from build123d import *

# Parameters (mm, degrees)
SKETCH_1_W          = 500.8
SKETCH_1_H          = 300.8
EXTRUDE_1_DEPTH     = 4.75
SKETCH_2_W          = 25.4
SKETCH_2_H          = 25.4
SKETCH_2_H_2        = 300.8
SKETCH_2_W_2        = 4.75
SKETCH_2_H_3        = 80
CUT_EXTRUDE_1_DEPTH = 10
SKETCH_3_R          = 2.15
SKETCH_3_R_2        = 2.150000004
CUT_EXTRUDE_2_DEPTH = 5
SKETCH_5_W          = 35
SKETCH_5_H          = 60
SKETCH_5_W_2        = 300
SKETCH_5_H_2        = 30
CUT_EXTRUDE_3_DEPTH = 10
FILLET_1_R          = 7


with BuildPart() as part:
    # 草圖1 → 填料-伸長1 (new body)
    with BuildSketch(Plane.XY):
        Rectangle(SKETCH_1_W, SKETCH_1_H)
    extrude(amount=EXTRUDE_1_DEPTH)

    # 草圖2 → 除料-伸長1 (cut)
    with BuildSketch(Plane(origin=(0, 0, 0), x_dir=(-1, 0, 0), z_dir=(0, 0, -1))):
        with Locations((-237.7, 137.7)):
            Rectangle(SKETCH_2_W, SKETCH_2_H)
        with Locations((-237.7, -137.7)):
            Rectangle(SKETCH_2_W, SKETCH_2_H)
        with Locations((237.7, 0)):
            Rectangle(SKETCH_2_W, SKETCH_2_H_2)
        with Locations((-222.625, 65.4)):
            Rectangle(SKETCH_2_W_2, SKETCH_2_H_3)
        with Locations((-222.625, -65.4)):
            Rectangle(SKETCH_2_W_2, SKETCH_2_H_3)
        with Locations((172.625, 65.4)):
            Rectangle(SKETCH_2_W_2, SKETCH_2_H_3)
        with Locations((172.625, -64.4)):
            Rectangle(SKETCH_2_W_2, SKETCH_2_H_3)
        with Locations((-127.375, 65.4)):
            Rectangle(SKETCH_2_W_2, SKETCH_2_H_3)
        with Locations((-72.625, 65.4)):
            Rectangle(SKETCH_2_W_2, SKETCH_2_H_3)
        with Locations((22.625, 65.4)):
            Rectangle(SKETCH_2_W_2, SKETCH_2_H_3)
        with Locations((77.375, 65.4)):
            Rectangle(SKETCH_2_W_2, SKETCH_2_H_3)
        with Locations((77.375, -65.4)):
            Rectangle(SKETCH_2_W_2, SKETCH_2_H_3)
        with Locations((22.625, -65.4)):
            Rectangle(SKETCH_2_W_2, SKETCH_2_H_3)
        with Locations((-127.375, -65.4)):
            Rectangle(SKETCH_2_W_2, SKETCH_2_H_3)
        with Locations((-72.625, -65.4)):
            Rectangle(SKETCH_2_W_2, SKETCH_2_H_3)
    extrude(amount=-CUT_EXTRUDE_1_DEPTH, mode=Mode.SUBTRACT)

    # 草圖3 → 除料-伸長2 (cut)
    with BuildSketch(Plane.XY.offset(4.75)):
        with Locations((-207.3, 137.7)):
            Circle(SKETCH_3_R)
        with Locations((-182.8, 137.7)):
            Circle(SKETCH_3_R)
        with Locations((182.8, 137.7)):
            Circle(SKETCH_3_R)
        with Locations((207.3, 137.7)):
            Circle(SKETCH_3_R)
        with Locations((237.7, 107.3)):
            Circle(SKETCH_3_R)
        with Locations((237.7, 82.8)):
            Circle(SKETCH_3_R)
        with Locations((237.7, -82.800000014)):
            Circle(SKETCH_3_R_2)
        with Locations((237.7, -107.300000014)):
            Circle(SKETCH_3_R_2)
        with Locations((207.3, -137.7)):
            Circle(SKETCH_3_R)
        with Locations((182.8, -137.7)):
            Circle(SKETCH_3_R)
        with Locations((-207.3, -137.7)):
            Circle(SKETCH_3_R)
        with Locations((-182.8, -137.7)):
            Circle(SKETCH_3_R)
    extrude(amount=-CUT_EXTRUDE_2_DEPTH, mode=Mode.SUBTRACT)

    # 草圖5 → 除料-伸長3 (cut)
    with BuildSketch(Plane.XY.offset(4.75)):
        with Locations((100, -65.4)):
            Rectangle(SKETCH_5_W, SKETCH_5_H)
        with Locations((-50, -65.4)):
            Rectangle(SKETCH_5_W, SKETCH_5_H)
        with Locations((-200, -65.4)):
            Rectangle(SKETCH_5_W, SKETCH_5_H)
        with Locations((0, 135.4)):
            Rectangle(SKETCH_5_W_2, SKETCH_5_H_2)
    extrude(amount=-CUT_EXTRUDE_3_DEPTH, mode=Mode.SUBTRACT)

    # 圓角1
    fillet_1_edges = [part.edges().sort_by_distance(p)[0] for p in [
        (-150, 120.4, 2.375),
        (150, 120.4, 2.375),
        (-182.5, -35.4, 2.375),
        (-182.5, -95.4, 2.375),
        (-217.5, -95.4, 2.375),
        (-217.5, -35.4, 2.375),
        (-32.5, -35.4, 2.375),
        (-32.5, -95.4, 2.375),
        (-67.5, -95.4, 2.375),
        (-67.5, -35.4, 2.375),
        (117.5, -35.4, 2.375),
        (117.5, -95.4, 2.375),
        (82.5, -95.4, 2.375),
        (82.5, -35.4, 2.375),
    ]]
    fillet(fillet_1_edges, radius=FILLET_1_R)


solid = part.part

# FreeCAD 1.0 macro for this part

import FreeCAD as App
import Part
import Sketcher

V = App.Vector
Q = App.Units.Quantity


def edges_at(feature, points):
    """Names of the edges that pass closest to the given points."""
    edges = feature.Shape.Edges
    near = lambda p: min(range(len(edges)), key=lambda i: edges[i].distToShape(Part.Vertex(*p))[0])
    return sorted({f"Edge{near(p) + 1}" for p in points})


def add_polygon(sketch, points):
    """Adds a closed chain of lines whose ends are joined by coincident constraints."""
    first, n = sketch.GeometryCount, len(points)
    for a, b in zip(points, points[1:] + points[:1]):
        sketch.addGeometry(Part.LineSegment(App.Vector(*a, 0), App.Vector(*b, 0)), False)
    for i in range(n):
        sketch.addConstraint(Sketcher.Constraint("Coincident", first + i, 2, first + (i + 1) % n, 1))

doc = App.newDocument("Part")
params = doc.addObject("Spreadsheet::Sheet", "Params")
for row, (alias, value) in enumerate([
    ("sketch1_width", "500.8 mm"),
    ("sketch1_height", "300.8 mm"),
    ("pad1_length", "4.75 mm"),
    ("sketch2_height", "80 mm"),
    ("sketch2_width", "25.4 mm"),
    ("sketch2_height2", "300.8 mm"),
    ("sketch2_width2", "4.75 mm"),
    ("pocket1_length", "10 mm"),
    ("sketch3_diameter", "4.3 mm"),
    ("pocket2_length", "5 mm"),
    ("sketch4_width", "35 mm"),
    ("sketch4_width2", "300 mm"),
    ("sketch4_height", "60 mm"),
    ("sketch4_height2", "30 mm"),
    ("pocket3_length", "10 mm"),
    ("fillet_radius", "7 mm"),
], start=1):
    params.set(f"A{row}", alias)
    params.set(f"B{row}", "=" + value)
    params.setAlias(f"B{row}", alias)

body = doc.addObject("PartDesign::Body", "Body")

sketch1 = body.newObject("Sketcher::SketchObject", "Sketch")
sketch1.AttachmentSupport = (doc.getObject("XY_Plane"), [""])
sketch1.MapMode = "FlatFace"
add_polygon(sketch1, [(-250.4, 150.4), (-250.4, -150.4), (250.4, -150.4), (250.4, 150.4)])
sketch1.addConstraint(Sketcher.Constraint("Vertical", 0))
sketch1.addConstraint(Sketcher.Constraint("Horizontal", 1))
sketch1.addConstraint(Sketcher.Constraint("Vertical", 2))
sketch1.addConstraint(Sketcher.Constraint("Horizontal", 3))
sketch1.addConstraint(Sketcher.Constraint("Symmetric", 0, 2, 2, 2, -1, 1))
sketch1.addConstraint(Sketcher.Constraint("DistanceX", 1, 1, 1, 2, Q("500.8 mm")))
sketch1.addConstraint(Sketcher.Constraint("DistanceY", 0, 2, 0, 1, Q("300.8 mm")))
sketch1.setExpression("Constraints[9]", "Params.sketch1_width")
sketch1.setExpression("Constraints[10]", "Params.sketch1_height")
pad1 = body.newObject("PartDesign::Pad", "Pad")
pad1.Profile = sketch1
pad1.setExpression("Length", "Params.pad1_length")

sketch2 = body.newObject("Sketcher::SketchObject", "Sketch001")
sketch2.AttachmentSupport = (doc.getObject("XY_Plane"), [""])
sketch2.MapMode = "FlatFace"
add_polygon(sketch2, [(250.4, 150.4), (250.4, 125), (225, 125), (225, 150.4)])
add_polygon(sketch2, [(250.4, -125), (250.4, -150.4), (225, -150.4), (225, -125)])
add_polygon(sketch2, [(-225, 150.4), (-225, -150.4), (-250.4, -150.4), (-250.4, 150.4)])
add_polygon(sketch2, [(225, 105.4), (225, 25.4), (220.25, 25.4), (220.25, 105.4)])
add_polygon(sketch2, [(225, -25.4), (225, -105.4), (220.25, -105.4), (220.25, -25.4)])
add_polygon(sketch2, [(-170.25, 105.4), (-170.25, 25.4), (-175, 25.4), (-175, 105.4)])
add_polygon(sketch2, [(-170.25, -24.4), (-170.25, -104.4), (-175, -104.4), (-175, -24.4)])
add_polygon(sketch2, [(129.75, 105.4), (129.75, 25.4), (125, 25.4), (125, 105.4)])
add_polygon(sketch2, [(75, 105.4), (75, 25.4), (70.25, 25.4), (70.25, 105.4)])
add_polygon(sketch2, [(-20.25, 105.4), (-20.25, 25.4), (-25, 25.4), (-25, 105.4)])
add_polygon(sketch2, [(-75, 105.4), (-75, 25.4), (-79.75, 25.4), (-79.75, 105.4)])
add_polygon(sketch2, [(-75, -25.4), (-75, -105.4), (-79.75, -105.4), (-79.75, -25.4)])
add_polygon(sketch2, [(-20.25, -25.4), (-20.25, -105.4), (-25, -105.4), (-25, -25.4)])
add_polygon(sketch2, [(129.75, -25.4), (129.75, -105.4), (125, -105.4), (125, -25.4)])
add_polygon(sketch2, [(75, -25.4), (75, -105.4), (70.25, -105.4), (70.25, -25.4)])
sketch2.addConstraint(Sketcher.Constraint("Vertical", 0))
sketch2.addConstraint(Sketcher.Constraint("Horizontal", 1))
sketch2.addConstraint(Sketcher.Constraint("Vertical", 2))
sketch2.addConstraint(Sketcher.Constraint("Horizontal", 3))
sketch2.addConstraint(Sketcher.Constraint("Vertical", 4))
sketch2.addConstraint(Sketcher.Constraint("Horizontal", 5))
sketch2.addConstraint(Sketcher.Constraint("Vertical", 6))
sketch2.addConstraint(Sketcher.Constraint("Horizontal", 7))
sketch2.addConstraint(Sketcher.Constraint("Vertical", 8))
sketch2.addConstraint(Sketcher.Constraint("Horizontal", 9))
sketch2.addConstraint(Sketcher.Constraint("Vertical", 10))
sketch2.addConstraint(Sketcher.Constraint("Horizontal", 11))
sketch2.addConstraint(Sketcher.Constraint("Vertical", 12))
sketch2.addConstraint(Sketcher.Constraint("Horizontal", 13))
sketch2.addConstraint(Sketcher.Constraint("Vertical", 14))
sketch2.addConstraint(Sketcher.Constraint("Horizontal", 15))
sketch2.addConstraint(Sketcher.Constraint("Vertical", 16))
sketch2.addConstraint(Sketcher.Constraint("Horizontal", 17))
sketch2.addConstraint(Sketcher.Constraint("Vertical", 18))
sketch2.addConstraint(Sketcher.Constraint("Horizontal", 19))
sketch2.addConstraint(Sketcher.Constraint("Vertical", 20))
sketch2.addConstraint(Sketcher.Constraint("Horizontal", 21))
sketch2.addConstraint(Sketcher.Constraint("Vertical", 22))
sketch2.addConstraint(Sketcher.Constraint("Horizontal", 23))
sketch2.addConstraint(Sketcher.Constraint("Vertical", 24))
sketch2.addConstraint(Sketcher.Constraint("Horizontal", 25))
sketch2.addConstraint(Sketcher.Constraint("Vertical", 26))
sketch2.addConstraint(Sketcher.Constraint("Horizontal", 27))
sketch2.addConstraint(Sketcher.Constraint("Vertical", 28))
sketch2.addConstraint(Sketcher.Constraint("Horizontal", 29))
sketch2.addConstraint(Sketcher.Constraint("Vertical", 30))
sketch2.addConstraint(Sketcher.Constraint("Horizontal", 31))
sketch2.addConstraint(Sketcher.Constraint("Vertical", 32))
sketch2.addConstraint(Sketcher.Constraint("Horizontal", 33))
sketch2.addConstraint(Sketcher.Constraint("Vertical", 34))
sketch2.addConstraint(Sketcher.Constraint("Horizontal", 35))
sketch2.addConstraint(Sketcher.Constraint("Vertical", 36))
sketch2.addConstraint(Sketcher.Constraint("Horizontal", 37))
sketch2.addConstraint(Sketcher.Constraint("Vertical", 38))
sketch2.addConstraint(Sketcher.Constraint("Horizontal", 39))
sketch2.addConstraint(Sketcher.Constraint("Vertical", 40))
sketch2.addConstraint(Sketcher.Constraint("Horizontal", 41))
sketch2.addConstraint(Sketcher.Constraint("Vertical", 42))
sketch2.addConstraint(Sketcher.Constraint("Horizontal", 43))
sketch2.addConstraint(Sketcher.Constraint("Vertical", 44))
sketch2.addConstraint(Sketcher.Constraint("Horizontal", 45))
sketch2.addConstraint(Sketcher.Constraint("Vertical", 46))
sketch2.addConstraint(Sketcher.Constraint("Horizontal", 47))
sketch2.addConstraint(Sketcher.Constraint("Vertical", 48))
sketch2.addConstraint(Sketcher.Constraint("Horizontal", 49))
sketch2.addConstraint(Sketcher.Constraint("Vertical", 50))
sketch2.addConstraint(Sketcher.Constraint("Horizontal", 51))
sketch2.addConstraint(Sketcher.Constraint("Vertical", 52))
sketch2.addConstraint(Sketcher.Constraint("Horizontal", 53))
sketch2.addConstraint(Sketcher.Constraint("Vertical", 54))
sketch2.addConstraint(Sketcher.Constraint("Horizontal", 55))
sketch2.addConstraint(Sketcher.Constraint("Vertical", 56))
sketch2.addConstraint(Sketcher.Constraint("Horizontal", 57))
sketch2.addConstraint(Sketcher.Constraint("Vertical", 58))
sketch2.addConstraint(Sketcher.Constraint("Horizontal", 59))
sketch2.addConstraint(Sketcher.Constraint("Symmetric", 2, 2, 8, 2, -1, 1))
sketch2.addConstraint(Sketcher.Constraint("Symmetric", 4, 2, 10, 2, -1, 1))
sketch2.addConstraint(Sketcher.Constraint("Symmetric", 35, 2, 44, 2, -1, 1))
sketch2.addConstraint(Sketcher.Constraint("Symmetric", 43, 2, 56, 2, -1, 1))
sketch2.addConstraint(Sketcher.Constraint("Symmetric", 5, 2, 8, 2, -2))
sketch2.addConstraint(Sketcher.Constraint("Symmetric", 32, 2, 40, 2, -2))
sketch2.addConstraint(Sketcher.Constraint("Symmetric", 0, 2, 7, 2, -1))
sketch2.addConstraint(Sketcher.Constraint("Symmetric", 15, 2, 16, 2, -1))
sketch2.addConstraint(Sketcher.Constraint("Symmetric", 13, 2, 18, 2, -1))
sketch2.addConstraint(Sketcher.Constraint("Symmetric", 42, 2, 45, 2, -1))
sketch2.addConstraint(Sketcher.Constraint("Symmetric", 39, 2, 48, 2, -1))
sketch2.addConstraint(Sketcher.Constraint("Symmetric", 37, 2, 50, 2, -1))
sketch2.addConstraint(Sketcher.Constraint("Symmetric", 31, 2, 52, 2, -1))
sketch2.addConstraint(Sketcher.Constraint("Symmetric", 29, 2, 54, 2, -1))
sketch2.addConstraint(Sketcher.Constraint("Symmetric", 33, 2, 58, 2, -1))
sketch2.addConstraint(Sketcher.Constraint("Horizontal", 13, 2, 20, 2))
sketch2.addConstraint(Sketcher.Constraint("Horizontal", 15, 2, 22, 2))
sketch2.addConstraint(Sketcher.Constraint("Horizontal", 21, 2, 28, 2))
sketch2.addConstraint(Sketcher.Constraint("Horizontal", 23, 2, 30, 2))
sketch2.addConstraint(Sketcher.Constraint("Horizontal", 29, 2, 32, 2))
sketch2.addConstraint(Sketcher.Constraint("Horizontal", 31, 2, 34, 2))
sketch2.addConstraint(Sketcher.Constraint("Horizontal", 33, 2, 36, 2))
sketch2.addConstraint(Sketcher.Constraint("Horizontal", 35, 2, 38, 2))
sketch2.addConstraint(Sketcher.Constraint("Horizontal", 19, 2, 46, 2))
sketch2.addConstraint(Sketcher.Constraint("Vertical", 6, 2, 12, 2))
sketch2.addConstraint(Sketcher.Constraint("Vertical", 23, 2, 24, 2))
sketch2.addConstraint(Sketcher.Constraint("Vertical", 22, 2, 25, 2))
sketch2.addConstraint(Sketcher.Constraint("Equal", 19, 21))
sketch2.addConstraint(Sketcher.Constraint("Equal", 27, 29))
sketch2.addConstraint(Sketcher.Constraint("Equal", 31, 33))
sketch2.addConstraint(Sketcher.Constraint("Equal", 35, 37))
sketch2.addConstraint(Sketcher.Constraint("Equal", 39, 41))
sketch2.addConstraint(Sketcher.Constraint("Equal", 11, 0))
sketch2.addConstraint(Sketcher.Constraint("Equal", 22, 24))
sketch2.addConstraint(Sketcher.Constraint("DistanceY", 12, 2, 12, 1, Q("80 mm")))
sketch2.addConstraint(Sketcher.Constraint("DistanceX", 1, 2, 1, 1, Q("25.4 mm")))
sketch2.addConstraint(Sketcher.Constraint("DistanceY", 8, 2, 8, 1, Q("300.8 mm")))
sketch2.addConstraint(Sketcher.Constraint("DistanceX", -1, 1, 1, 2, Q("225 mm")))
sketch2.addConstraint(Sketcher.Constraint("DistanceX", 21, 2, -1, 1, Q("175 mm")))
sketch2.addConstraint(Sketcher.Constraint("DistanceX", -1, 1, 29, 2, Q("125 mm")))
sketch2.addConstraint(Sketcher.Constraint("DistanceX", -1, 1, 32, 2, Q("75 mm")))
sketch2.addConstraint(Sketcher.Constraint("DistanceX", 37, 2, -1, 1, Q("25 mm")))
sketch2.addConstraint(Sketcher.Constraint("DistanceY", 12, 2, 2, 2, Q("125 mm")))
sketch2.addConstraint(Sketcher.Constraint("DistanceY", 8, 2, 24, 2, Q("46 mm")))
sketch2.addConstraint(Sketcher.Constraint("DistanceX", 13, 2, 13, 1, Q("4.75 mm")))
sketch2.setExpression("Constraints[154]", "Params.sketch2_height")
sketch2.setExpression("Constraints[155]", "Params.sketch2_width")
sketch2.setExpression("Constraints[156]", "Params.sketch2_height2")
sketch2.setExpression("Constraints[164]", "Params.sketch2_width2")
pocket1 = body.newObject("PartDesign::Pocket", "Pocket")
pocket1.Profile = sketch2
pocket1.setExpression("Length", "Params.pocket1_length")
pocket1.Reversed = True

sketch3 = body.newObject("Sketcher::SketchObject", "Sketch002")
sketch3.AttachmentSupport = (doc.getObject("XY_Plane"), [""])
sketch3.MapMode = "FlatFace"
sketch3.AttachmentOffset = App.Placement(V(0, 0, 4.75), App.Rotation())
sketch3.addGeometry(Part.Circle(V(-207.3, 137.7, 0), V(0, 0, 1), 2.15), False)
sketch3.addGeometry(Part.Circle(V(-182.8, 137.7, 0), V(0, 0, 1), 2.15), False)
sketch3.addGeometry(Part.Circle(V(182.8, 137.7, 0), V(0, 0, 1), 2.15), False)
sketch3.addGeometry(Part.Circle(V(207.3, 137.7, 0), V(0, 0, 1), 2.15), False)
sketch3.addGeometry(Part.Circle(V(237.7, 107.3, 0), V(0, 0, 1), 2.15), False)
sketch3.addGeometry(Part.Circle(V(237.7, 82.8, 0), V(0, 0, 1), 2.15), False)
sketch3.addGeometry(Part.Circle(V(237.7, -82.8, 0), V(0, 0, 1), 2.15), False)
sketch3.addGeometry(Part.Circle(V(237.7, -107.3, 0), V(0, 0, 1), 2.15), False)
sketch3.addGeometry(Part.Circle(V(207.3, -137.7, 0), V(0, 0, 1), 2.15), False)
sketch3.addGeometry(Part.Circle(V(182.8, -137.7, 0), V(0, 0, 1), 2.15), False)
sketch3.addGeometry(Part.Circle(V(-207.3, -137.7, 0), V(0, 0, 1), 2.15), False)
sketch3.addGeometry(Part.Circle(V(-182.8, -137.7, 0), V(0, 0, 1), 2.15), False)
sketch3.addConstraint(Sketcher.Constraint("Equal", 0, 1))
sketch3.addConstraint(Sketcher.Constraint("Equal", 1, 2))
sketch3.addConstraint(Sketcher.Constraint("Equal", 2, 3))
sketch3.addConstraint(Sketcher.Constraint("Equal", 3, 4))
sketch3.addConstraint(Sketcher.Constraint("Equal", 4, 5))
sketch3.addConstraint(Sketcher.Constraint("Equal", 5, 6))
sketch3.addConstraint(Sketcher.Constraint("Equal", 6, 7))
sketch3.addConstraint(Sketcher.Constraint("Equal", 7, 8))
sketch3.addConstraint(Sketcher.Constraint("Equal", 8, 9))
sketch3.addConstraint(Sketcher.Constraint("Equal", 9, 10))
sketch3.addConstraint(Sketcher.Constraint("Equal", 10, 11))
sketch3.addConstraint(Sketcher.Constraint("Symmetric", 0, 3, 8, 3, -1, 1))
sketch3.addConstraint(Sketcher.Constraint("Symmetric", 1, 3, 9, 3, -1, 1))
sketch3.addConstraint(Sketcher.Constraint("Symmetric", 3, 3, 10, 3, -1, 1))
sketch3.addConstraint(Sketcher.Constraint("Symmetric", 2, 3, 11, 3, -1, 1))
sketch3.addConstraint(Sketcher.Constraint("Symmetric", 1, 3, 2, 3, -2))
sketch3.addConstraint(Sketcher.Constraint("Symmetric", 0, 3, 3, 3, -2))
sketch3.addConstraint(Sketcher.Constraint("Symmetric", 5, 3, 6, 3, -1))
sketch3.addConstraint(Sketcher.Constraint("Symmetric", 4, 3, 7, 3, -1))
sketch3.addConstraint(Sketcher.Constraint("Horizontal", 0, 3, 1, 3))
sketch3.addConstraint(Sketcher.Constraint("Vertical", 4, 3, 5, 3))
sketch3.addConstraint(Sketcher.Constraint("Diameter", 0, Q("4.3 mm")))
sketch3.addConstraint(Sketcher.Constraint("DistanceX", 0, 3, 4, 3, Q("445 mm")))
sketch3.addConstraint(Sketcher.Constraint("DistanceY", 7, 3, 3, 3, Q("245 mm")))
sketch3.addConstraint(Sketcher.Constraint("DistanceX", 0, 3, -1, 1, Q("207.3 mm")))
sketch3.addConstraint(Sketcher.Constraint("DistanceY", -1, 1, 0, 3, Q("137.7 mm")))
sketch3.addConstraint(Sketcher.Constraint("DistanceX", 1, 3, -1, 1, Q("182.8 mm")))
sketch3.addConstraint(Sketcher.Constraint("DistanceY", -1, 1, 5, 3, Q("82.8 mm")))
sketch3.setExpression("Constraints[21]", "Params.sketch3_diameter")
pocket2 = body.newObject("PartDesign::Pocket", "Pocket001")
pocket2.Profile = sketch3
pocket2.setExpression("Length", "Params.pocket2_length")

sketch4 = body.newObject("Sketcher::SketchObject", "Sketch003")
sketch4.AttachmentSupport = (doc.getObject("XY_Plane"), [""])
sketch4.MapMode = "FlatFace"
sketch4.AttachmentOffset = App.Placement(V(0, 0, 4.75), App.Rotation())
add_polygon(sketch4, [(82.5, -35.4), (82.5, -95.4), (117.5, -95.4), (117.5, -35.4)])
add_polygon(sketch4, [(-67.5, -35.4), (-67.5, -95.4), (-32.5, -95.4), (-32.5, -35.4)])
add_polygon(sketch4, [(-217.5, -35.4), (-217.5, -95.4), (-182.5, -95.4), (-182.5, -35.4)])
add_polygon(sketch4, [(-150, 150.4), (-150, 120.4), (150, 120.4), (150, 150.4)])
sketch4.addConstraint(Sketcher.Constraint("Vertical", 0))
sketch4.addConstraint(Sketcher.Constraint("Horizontal", 1))
sketch4.addConstraint(Sketcher.Constraint("Vertical", 2))
sketch4.addConstraint(Sketcher.Constraint("Horizontal", 3))
sketch4.addConstraint(Sketcher.Constraint("Vertical", 4))
sketch4.addConstraint(Sketcher.Constraint("Horizontal", 5))
sketch4.addConstraint(Sketcher.Constraint("Vertical", 6))
sketch4.addConstraint(Sketcher.Constraint("Horizontal", 7))
sketch4.addConstraint(Sketcher.Constraint("Vertical", 8))
sketch4.addConstraint(Sketcher.Constraint("Horizontal", 9))
sketch4.addConstraint(Sketcher.Constraint("Vertical", 10))
sketch4.addConstraint(Sketcher.Constraint("Horizontal", 11))
sketch4.addConstraint(Sketcher.Constraint("Vertical", 12))
sketch4.addConstraint(Sketcher.Constraint("Horizontal", 13))
sketch4.addConstraint(Sketcher.Constraint("Vertical", 14))
sketch4.addConstraint(Sketcher.Constraint("Horizontal", 15))
sketch4.addConstraint(Sketcher.Constraint("Horizontal", 1, 2, 4, 2))
sketch4.addConstraint(Sketcher.Constraint("Horizontal", 3, 2, 6, 2))
sketch4.addConstraint(Sketcher.Constraint("Horizontal", 5, 2, 8, 2))
sketch4.addConstraint(Sketcher.Constraint("Horizontal", 7, 2, 10, 2))
sketch4.addConstraint(Sketcher.Constraint("Equal", 3, 5))
sketch4.addConstraint(Sketcher.Constraint("Equal", 7, 9))
sketch4.addConstraint(Sketcher.Constraint("DistanceX", 1, 1, 1, 2, Q("35 mm")))
sketch4.addConstraint(Sketcher.Constraint("DistanceX", 13, 1, 13, 2, Q("300 mm")))
sketch4.addConstraint(Sketcher.Constraint("DistanceY", 0, 2, 0, 1, Q("60 mm")))
sketch4.addConstraint(Sketcher.Constraint("DistanceY", 12, 2, 12, 1, Q("30 mm")))
sketch4.addConstraint(Sketcher.Constraint("DistanceX", 12, 2, -1, 1, Q("150 mm")))
sketch4.addConstraint(Sketcher.Constraint("DistanceX", 4, 2, 0, 2, Q("150 mm")))
sketch4.addConstraint(Sketcher.Constraint("DistanceX", 8, 2, 4, 2, Q("150 mm")))
sketch4.addConstraint(Sketcher.Constraint("DistanceX", -1, 1, 0, 2, Q("82.5 mm")))
sketch4.addConstraint(Sketcher.Constraint("DistanceY", 0, 2, -1, 1, Q("95.4 mm")))
sketch4.addConstraint(Sketcher.Constraint("DistanceY", -1, 1, 12, 2, Q("120.4 mm")))
sketch4.setExpression("Constraints[38]", "Params.sketch4_width")
sketch4.setExpression("Constraints[39]", "Params.sketch4_width2")
sketch4.setExpression("Constraints[40]", "Params.sketch4_height")
sketch4.setExpression("Constraints[41]", "Params.sketch4_height2")
pocket3 = body.newObject("PartDesign::Pocket", "Pocket002")
pocket3.Profile = sketch4
pocket3.setExpression("Length", "Params.pocket3_length")
doc.recompute()

fillet = body.newObject("PartDesign::Fillet", "Fillet")
fillet.Base = (pocket3, edges_at(pocket3, [
    (-150, 120.4, 2.375),
    (150, 120.4, 2.375),
    (-182.5, -35.4, 2.375),
    (-182.5, -95.4, 2.375),
    (-217.5, -95.4, 2.375),
    (-217.5, -35.4, 2.375),
    (-32.5, -35.4, 2.375),
    (-32.5, -95.4, 2.375),
    (-67.5, -95.4, 2.375),
    (-67.5, -35.4, 2.375),
    (117.5, -35.4, 2.375),
    (117.5, -95.4, 2.375),
    (82.5, -95.4, 2.375),
    (82.5, -35.4, 2.375),
]))
fillet.setExpression("Radius", "Params.fillet_radius")

doc.recompute()
